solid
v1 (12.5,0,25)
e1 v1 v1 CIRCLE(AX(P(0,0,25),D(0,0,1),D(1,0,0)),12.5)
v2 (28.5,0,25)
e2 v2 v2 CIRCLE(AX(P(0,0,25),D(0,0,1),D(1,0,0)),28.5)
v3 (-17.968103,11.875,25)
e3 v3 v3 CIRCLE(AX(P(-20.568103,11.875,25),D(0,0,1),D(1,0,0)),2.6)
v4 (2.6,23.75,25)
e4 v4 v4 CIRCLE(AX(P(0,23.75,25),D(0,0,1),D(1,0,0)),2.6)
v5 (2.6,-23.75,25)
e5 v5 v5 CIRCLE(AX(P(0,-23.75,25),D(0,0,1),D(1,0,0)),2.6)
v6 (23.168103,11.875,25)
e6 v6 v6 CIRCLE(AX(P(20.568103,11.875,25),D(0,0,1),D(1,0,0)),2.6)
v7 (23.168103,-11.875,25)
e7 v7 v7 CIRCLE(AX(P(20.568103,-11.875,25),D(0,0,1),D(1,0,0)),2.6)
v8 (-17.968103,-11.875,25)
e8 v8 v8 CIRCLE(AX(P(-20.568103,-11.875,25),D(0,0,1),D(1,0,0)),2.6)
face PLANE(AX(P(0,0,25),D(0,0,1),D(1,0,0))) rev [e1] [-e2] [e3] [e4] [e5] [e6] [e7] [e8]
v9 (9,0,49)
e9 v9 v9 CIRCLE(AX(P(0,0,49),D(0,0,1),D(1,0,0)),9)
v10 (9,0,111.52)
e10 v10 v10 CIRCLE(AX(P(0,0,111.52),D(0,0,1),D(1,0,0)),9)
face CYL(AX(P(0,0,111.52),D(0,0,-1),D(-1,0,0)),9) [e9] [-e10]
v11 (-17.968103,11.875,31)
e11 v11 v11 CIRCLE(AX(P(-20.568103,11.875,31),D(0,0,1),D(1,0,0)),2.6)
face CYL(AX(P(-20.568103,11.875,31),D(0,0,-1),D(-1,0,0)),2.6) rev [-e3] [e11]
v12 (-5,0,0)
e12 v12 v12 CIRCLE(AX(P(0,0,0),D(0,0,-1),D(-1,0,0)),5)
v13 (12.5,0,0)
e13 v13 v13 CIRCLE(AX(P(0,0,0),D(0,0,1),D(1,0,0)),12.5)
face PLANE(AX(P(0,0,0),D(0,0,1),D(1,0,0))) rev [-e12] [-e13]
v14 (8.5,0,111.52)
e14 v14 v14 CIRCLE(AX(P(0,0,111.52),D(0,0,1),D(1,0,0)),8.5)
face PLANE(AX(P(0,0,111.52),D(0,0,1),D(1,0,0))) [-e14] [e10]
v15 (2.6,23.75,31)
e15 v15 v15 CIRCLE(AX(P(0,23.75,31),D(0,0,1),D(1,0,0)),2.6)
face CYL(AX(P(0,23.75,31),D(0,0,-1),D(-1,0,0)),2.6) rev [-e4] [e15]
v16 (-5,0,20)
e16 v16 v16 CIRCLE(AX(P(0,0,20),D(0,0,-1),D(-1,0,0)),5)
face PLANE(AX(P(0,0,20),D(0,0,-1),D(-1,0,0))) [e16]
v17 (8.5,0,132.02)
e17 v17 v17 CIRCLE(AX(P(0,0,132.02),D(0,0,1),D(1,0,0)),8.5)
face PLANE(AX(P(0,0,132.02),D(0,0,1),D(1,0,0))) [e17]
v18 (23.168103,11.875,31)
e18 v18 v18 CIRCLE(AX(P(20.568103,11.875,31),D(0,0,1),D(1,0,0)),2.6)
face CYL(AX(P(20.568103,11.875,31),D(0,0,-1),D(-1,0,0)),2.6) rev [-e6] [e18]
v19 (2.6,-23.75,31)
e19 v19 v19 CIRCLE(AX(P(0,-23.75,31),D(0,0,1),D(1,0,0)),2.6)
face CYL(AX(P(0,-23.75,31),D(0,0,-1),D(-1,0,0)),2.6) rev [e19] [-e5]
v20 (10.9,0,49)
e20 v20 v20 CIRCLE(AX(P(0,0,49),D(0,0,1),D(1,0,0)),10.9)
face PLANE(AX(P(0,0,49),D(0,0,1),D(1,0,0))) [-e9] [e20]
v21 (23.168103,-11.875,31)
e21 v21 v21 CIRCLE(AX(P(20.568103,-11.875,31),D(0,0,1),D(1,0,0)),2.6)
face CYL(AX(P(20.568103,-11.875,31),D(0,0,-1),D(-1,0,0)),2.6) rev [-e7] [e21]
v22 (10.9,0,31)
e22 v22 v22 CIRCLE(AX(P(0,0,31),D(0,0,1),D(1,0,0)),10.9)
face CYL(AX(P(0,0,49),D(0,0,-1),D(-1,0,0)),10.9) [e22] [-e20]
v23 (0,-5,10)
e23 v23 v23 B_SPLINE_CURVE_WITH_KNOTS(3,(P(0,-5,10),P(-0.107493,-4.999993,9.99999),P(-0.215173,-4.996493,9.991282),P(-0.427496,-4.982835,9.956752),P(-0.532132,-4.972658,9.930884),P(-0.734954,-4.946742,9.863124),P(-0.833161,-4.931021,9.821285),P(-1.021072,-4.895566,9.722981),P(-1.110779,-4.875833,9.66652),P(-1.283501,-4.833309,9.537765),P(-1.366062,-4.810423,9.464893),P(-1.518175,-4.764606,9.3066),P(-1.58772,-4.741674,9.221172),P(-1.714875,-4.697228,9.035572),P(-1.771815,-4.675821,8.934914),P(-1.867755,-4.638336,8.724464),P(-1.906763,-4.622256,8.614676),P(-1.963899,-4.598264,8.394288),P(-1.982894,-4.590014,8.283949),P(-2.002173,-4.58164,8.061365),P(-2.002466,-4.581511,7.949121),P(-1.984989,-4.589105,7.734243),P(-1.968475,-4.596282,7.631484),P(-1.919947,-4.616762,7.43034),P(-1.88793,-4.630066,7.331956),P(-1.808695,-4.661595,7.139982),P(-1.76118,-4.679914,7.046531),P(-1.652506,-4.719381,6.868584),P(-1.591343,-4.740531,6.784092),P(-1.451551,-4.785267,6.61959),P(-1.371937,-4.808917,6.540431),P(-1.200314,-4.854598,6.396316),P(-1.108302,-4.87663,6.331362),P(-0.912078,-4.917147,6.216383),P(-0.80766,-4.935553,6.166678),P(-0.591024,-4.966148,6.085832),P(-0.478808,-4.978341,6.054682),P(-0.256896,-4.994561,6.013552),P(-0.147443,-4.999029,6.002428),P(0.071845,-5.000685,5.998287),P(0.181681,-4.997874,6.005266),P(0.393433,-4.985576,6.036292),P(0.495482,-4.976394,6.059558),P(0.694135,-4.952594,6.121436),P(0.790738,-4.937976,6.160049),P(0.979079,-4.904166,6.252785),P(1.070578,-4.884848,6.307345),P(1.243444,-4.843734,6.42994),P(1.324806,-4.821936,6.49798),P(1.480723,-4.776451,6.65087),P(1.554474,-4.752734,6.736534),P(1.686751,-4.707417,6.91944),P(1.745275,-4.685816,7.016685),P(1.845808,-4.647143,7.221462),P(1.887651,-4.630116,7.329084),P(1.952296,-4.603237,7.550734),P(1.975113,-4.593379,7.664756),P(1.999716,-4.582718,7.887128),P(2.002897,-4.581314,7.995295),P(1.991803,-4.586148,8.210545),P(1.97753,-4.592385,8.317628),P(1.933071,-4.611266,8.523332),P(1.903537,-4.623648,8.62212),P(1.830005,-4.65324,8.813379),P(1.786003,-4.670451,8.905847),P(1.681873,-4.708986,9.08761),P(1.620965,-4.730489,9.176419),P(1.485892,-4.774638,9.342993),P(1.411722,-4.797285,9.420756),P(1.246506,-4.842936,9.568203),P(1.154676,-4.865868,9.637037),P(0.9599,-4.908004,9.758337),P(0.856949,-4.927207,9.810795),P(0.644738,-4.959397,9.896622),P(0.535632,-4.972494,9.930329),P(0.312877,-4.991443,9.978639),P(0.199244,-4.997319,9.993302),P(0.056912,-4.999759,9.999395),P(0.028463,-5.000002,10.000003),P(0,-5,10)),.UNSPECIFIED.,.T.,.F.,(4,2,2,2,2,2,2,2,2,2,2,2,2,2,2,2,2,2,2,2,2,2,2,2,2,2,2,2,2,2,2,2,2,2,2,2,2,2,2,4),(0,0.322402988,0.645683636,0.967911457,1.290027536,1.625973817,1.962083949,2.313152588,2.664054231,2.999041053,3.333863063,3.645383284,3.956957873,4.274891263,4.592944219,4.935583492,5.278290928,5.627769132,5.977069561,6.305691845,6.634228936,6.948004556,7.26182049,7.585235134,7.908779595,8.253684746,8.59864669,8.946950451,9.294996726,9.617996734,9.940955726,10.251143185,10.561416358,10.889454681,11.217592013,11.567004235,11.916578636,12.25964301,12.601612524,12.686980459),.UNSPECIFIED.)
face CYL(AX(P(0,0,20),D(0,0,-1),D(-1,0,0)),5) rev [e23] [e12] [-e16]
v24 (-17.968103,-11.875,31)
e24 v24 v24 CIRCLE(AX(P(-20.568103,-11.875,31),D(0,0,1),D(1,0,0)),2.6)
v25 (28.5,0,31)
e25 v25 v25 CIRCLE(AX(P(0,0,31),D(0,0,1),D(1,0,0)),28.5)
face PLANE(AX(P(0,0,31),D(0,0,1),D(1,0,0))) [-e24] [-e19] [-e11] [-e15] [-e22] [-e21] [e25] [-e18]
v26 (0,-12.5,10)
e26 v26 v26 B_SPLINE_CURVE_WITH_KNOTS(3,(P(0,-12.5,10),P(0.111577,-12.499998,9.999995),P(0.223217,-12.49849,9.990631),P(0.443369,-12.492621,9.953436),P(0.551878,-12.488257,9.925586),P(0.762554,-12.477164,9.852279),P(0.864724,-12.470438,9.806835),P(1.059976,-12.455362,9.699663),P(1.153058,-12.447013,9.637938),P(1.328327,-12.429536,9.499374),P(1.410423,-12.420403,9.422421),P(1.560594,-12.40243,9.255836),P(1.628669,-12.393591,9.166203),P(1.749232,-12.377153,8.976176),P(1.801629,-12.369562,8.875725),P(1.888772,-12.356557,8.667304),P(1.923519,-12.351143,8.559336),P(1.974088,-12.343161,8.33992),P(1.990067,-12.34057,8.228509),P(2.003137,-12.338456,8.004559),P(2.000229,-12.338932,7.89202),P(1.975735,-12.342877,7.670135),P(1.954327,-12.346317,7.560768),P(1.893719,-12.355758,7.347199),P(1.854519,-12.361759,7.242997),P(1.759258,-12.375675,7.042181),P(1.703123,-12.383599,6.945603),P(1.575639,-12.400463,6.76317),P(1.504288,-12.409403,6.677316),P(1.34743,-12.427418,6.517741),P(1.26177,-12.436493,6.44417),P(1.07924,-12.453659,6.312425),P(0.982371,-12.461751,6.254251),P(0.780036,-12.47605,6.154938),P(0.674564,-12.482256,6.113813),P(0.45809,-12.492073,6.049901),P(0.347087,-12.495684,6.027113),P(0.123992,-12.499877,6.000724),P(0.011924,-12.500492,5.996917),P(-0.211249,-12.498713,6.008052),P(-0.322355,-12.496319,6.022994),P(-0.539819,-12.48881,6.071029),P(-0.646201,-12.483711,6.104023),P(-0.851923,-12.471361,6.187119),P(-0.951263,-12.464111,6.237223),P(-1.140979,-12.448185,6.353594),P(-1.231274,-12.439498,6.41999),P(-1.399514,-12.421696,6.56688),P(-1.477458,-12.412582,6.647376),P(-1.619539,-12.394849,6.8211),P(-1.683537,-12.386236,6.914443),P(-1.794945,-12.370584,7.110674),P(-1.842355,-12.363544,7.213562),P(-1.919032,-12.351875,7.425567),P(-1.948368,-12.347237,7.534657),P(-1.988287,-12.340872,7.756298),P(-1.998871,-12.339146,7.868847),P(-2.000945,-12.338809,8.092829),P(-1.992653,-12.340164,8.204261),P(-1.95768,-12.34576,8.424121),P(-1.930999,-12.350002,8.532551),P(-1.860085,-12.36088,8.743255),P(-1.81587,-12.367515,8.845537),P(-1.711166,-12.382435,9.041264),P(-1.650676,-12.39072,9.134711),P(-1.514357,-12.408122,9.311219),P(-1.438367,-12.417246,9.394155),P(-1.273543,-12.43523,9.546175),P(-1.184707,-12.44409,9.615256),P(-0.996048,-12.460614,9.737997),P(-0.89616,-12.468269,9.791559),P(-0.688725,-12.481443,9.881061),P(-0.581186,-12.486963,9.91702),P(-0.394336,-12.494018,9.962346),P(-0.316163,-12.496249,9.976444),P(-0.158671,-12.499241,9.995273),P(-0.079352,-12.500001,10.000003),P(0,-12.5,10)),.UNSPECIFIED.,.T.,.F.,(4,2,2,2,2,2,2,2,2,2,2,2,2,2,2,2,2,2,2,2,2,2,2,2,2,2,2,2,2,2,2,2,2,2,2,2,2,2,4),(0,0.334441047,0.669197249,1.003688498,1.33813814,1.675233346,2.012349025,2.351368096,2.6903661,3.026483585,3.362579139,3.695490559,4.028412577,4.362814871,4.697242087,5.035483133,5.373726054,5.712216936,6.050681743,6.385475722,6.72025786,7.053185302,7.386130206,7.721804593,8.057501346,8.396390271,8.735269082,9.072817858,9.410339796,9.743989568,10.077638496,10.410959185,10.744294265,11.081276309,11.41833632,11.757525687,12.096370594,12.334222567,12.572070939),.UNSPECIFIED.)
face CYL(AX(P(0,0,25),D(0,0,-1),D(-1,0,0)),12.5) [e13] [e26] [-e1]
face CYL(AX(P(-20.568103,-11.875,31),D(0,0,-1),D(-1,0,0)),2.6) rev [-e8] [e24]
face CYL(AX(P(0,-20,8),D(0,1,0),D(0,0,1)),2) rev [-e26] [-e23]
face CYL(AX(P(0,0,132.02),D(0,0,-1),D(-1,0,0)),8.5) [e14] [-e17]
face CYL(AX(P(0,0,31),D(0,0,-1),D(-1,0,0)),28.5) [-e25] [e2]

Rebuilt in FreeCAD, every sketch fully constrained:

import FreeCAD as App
import Part
import Sketcher
Q = App.Units.Quantity

doc = App.newDocument("Part")
body = doc.addObject("PartDesign::Body", "Body")

# Sketch on XY plane
sketch1 = doc.addObject("Sketcher::SketchObject", "Sketch")
body.addObject(sketch1)
sketch1.AttachmentSupport = (doc.XY_Plane, [""])
sketch1.MapMode = "FlatFace"
sketch1.addGeometry(Part.Circle(App.Vector(0, 0, 0), App.Vector(0, 0, 1), 12.5), False)
sketch1.addConstraint([
    Sketcher.Constraint("Coincident", 0, 3, -1, 1),
    Sketcher.Constraint("Diameter", 0, Q("25 mm")),
])
pad1 = doc.addObject("PartDesign::Pad", "Pad")
body.addObject(pad1)
pad1.Profile = sketch1
pad1.Length = 25

# Sketch on XY plane
sketch2 = doc.addObject("Sketcher::SketchObject", "Sketch001")
body.addObject(sketch2)
sketch2.AttachmentSupport = (doc.XY_Plane, [""])
sketch2.MapMode = "FlatFace"
sketch2.addGeometry(Part.Circle(App.Vector(0, 0, 0), App.Vector(0, 0, 1), 5), False)
sketch2.addConstraint([
    Sketcher.Constraint("Coincident", 0, 3, -1, 1),
    Sketcher.Constraint("Diameter", 0, Q("10 mm")),
])
pocket1 = doc.addObject("PartDesign::Pocket", "Pocket")
body.addObject(pocket1)
pocket1.Profile = sketch2
pocket1.Length = 20
pocket1.Reversed = True

# Sketch on XZ plane
sketch3 = doc.addObject("Sketcher::SketchObject", "Sketch002")
body.addObject(sketch3)
sketch3.AttachmentSupport = (doc.XZ_Plane, [""])
sketch3.MapMode = "FlatFace"
sketch3.addGeometry(Part.Circle(App.Vector(0, 8, 0), App.Vector(0, 0, 1), 2), False)
sketch3.addConstraint([
    Sketcher.Constraint("PointOnObject", 0, 3, -2),
    Sketcher.Constraint("Diameter", 0, Q("4 mm")),
    Sketcher.Constraint("DistanceY", -1, 1, 0, 3, Q("8 mm")),
])
pocket2 = doc.addObject("PartDesign::Pocket", "Pocket001")
body.addObject(pocket2)
pocket2.Profile = sketch3
pocket2.Length = 20
pocket2.Reversed = True

# Sketch on XY plane
sketch4 = doc.addObject("Sketcher::SketchObject", "Sketch003")
body.addObject(sketch4)
sketch4.AttachmentSupport = (doc.XY_Plane, [""])
sketch4.MapMode = "FlatFace"
sketch4.AttachmentOffset = App.Placement(App.Vector(0, 0, 25), App.Rotation())
sketch4.addGeometry([
    Part.Circle(App.Vector(0, 0, 0), App.Vector(0, 0, 1), 28.5),  # 0
    Part.Circle(App.Vector(-20.568103, -11.875, 0), App.Vector(0, 0, 1), 2.6),  # 1
    Part.Circle(App.Vector(0, -23.75, 0), App.Vector(0, 0, 1), 2.6),  # 2
    Part.Circle(App.Vector(20.568103, -11.875, 0), App.Vector(0, 0, 1), 2.6),  # 3
    Part.Circle(App.Vector(-20.568103, 11.875, 0), App.Vector(0, 0, 1), 2.6),  # 4
    Part.Circle(App.Vector(20.568103, 11.875, 0), App.Vector(0, 0, 1), 2.6),  # 5
    Part.Circle(App.Vector(0, 23.75, 0), App.Vector(0, 0, 1), 2.6),  # 6
], False)
sketch4.addConstraint([
    Sketcher.Constraint("Coincident", 0, 3, -1, 1),
    Sketcher.Constraint("Equal", 1, 2),
    Sketcher.Constraint("Equal", 2, 3),
    Sketcher.Constraint("Equal", 3, 4),
    Sketcher.Constraint("Equal", 4, 5),
    Sketcher.Constraint("Equal", 5, 6),
    Sketcher.Constraint("Symmetric", 3, 3, 4, 3, -1, 1),
    Sketcher.Constraint("Symmetric", 1, 3, 5, 3, -1, 1),
    Sketcher.Constraint("Symmetric", 2, 3, 6, 3, -1, 1),
    Sketcher.Constraint("Symmetric", 1, 3, 3, 3, -2),
    Sketcher.Constraint("PointOnObject", 2, 3, -2),
    Sketcher.Constraint("Diameter", 0, Q("57 mm")),
    Sketcher.Constraint("Diameter", 1, Q("5.2 mm")),
    Sketcher.Constraint("DistanceY", 2, 3, -1, 1, Q("23.75 mm")),
    Sketcher.Constraint("DistanceY", 1, 3, 4, 3, Q("23.75 mm")),
    Sketcher.Constraint("DistanceX", 1, 3, -1, 1, Q("20.568103 mm")),
])
pad2 = doc.addObject("PartDesign::Pad", "Pad001")
body.addObject(pad2)
pad2.Profile = sketch4
pad2.Length = 6

# Sketch on XY plane
sketch5 = doc.addObject("Sketcher::SketchObject", "Sketch004")
body.addObject(sketch5)
sketch5.AttachmentSupport = (doc.XY_Plane, [""])
sketch5.MapMode = "FlatFace"
sketch5.AttachmentOffset = App.Placement(App.Vector(0, 0, 31), App.Rotation())
sketch5.addGeometry(Part.Circle(App.Vector(0, 0, 0), App.Vector(0, 0, 1), 9), False)
sketch5.addConstraint([
    Sketcher.Constraint("Coincident", 0, 3, -1, 1),
    Sketcher.Constraint("Diameter", 0, Q("18 mm")),
])
pad3 = doc.addObject("PartDesign::Pad", "Pad002")
body.addObject(pad3)
pad3.Profile = sketch5
pad3.Length = 80.52

# Sketch on XY plane
sketch6 = doc.addObject("Sketcher::SketchObject", "Sketch005")
body.addObject(sketch6)
sketch6.AttachmentSupport = (doc.XY_Plane, [""])
sketch6.MapMode = "FlatFace"
sketch6.AttachmentOffset = App.Placement(App.Vector(0, 0, 111.52), App.Rotation())
sketch6.addGeometry(Part.Circle(App.Vector(0, 0, 0), App.Vector(0, 0, 1), 8.5), False)
sketch6.addConstraint([
    Sketcher.Constraint("Coincident", 0, 3, -1, 1),
    Sketcher.Constraint("Diameter", 0, Q("17 mm")),
])
pad4 = doc.addObject("PartDesign::Pad", "Pad003")
body.addObject(pad4)
pad4.Profile = sketch6
pad4.Length = 20.5

# Sketch on XY plane
sketch7 = doc.addObject("Sketcher::SketchObject", "Sketch006")
body.addObject(sketch7)
sketch7.AttachmentSupport = (doc.XY_Plane, [""])
sketch7.MapMode = "FlatFace"
sketch7.AttachmentOffset = App.Placement(App.Vector(0, 0, 31), App.Rotation())
sketch7.addGeometry(Part.Circle(App.Vector(0, 0, 0), App.Vector(0, 0, 1), 10.9), False)
sketch7.addConstraint([
    Sketcher.Constraint("Coincident", 0, 3, -1, 1),
    Sketcher.Constraint("Diameter", 0, Q("21.8 mm")),
])
pad5 = doc.addObject("PartDesign::Pad", "Pad004")
body.addObject(pad5)
pad5.Profile = sketch7
pad5.Length = 18

doc.recompute()
